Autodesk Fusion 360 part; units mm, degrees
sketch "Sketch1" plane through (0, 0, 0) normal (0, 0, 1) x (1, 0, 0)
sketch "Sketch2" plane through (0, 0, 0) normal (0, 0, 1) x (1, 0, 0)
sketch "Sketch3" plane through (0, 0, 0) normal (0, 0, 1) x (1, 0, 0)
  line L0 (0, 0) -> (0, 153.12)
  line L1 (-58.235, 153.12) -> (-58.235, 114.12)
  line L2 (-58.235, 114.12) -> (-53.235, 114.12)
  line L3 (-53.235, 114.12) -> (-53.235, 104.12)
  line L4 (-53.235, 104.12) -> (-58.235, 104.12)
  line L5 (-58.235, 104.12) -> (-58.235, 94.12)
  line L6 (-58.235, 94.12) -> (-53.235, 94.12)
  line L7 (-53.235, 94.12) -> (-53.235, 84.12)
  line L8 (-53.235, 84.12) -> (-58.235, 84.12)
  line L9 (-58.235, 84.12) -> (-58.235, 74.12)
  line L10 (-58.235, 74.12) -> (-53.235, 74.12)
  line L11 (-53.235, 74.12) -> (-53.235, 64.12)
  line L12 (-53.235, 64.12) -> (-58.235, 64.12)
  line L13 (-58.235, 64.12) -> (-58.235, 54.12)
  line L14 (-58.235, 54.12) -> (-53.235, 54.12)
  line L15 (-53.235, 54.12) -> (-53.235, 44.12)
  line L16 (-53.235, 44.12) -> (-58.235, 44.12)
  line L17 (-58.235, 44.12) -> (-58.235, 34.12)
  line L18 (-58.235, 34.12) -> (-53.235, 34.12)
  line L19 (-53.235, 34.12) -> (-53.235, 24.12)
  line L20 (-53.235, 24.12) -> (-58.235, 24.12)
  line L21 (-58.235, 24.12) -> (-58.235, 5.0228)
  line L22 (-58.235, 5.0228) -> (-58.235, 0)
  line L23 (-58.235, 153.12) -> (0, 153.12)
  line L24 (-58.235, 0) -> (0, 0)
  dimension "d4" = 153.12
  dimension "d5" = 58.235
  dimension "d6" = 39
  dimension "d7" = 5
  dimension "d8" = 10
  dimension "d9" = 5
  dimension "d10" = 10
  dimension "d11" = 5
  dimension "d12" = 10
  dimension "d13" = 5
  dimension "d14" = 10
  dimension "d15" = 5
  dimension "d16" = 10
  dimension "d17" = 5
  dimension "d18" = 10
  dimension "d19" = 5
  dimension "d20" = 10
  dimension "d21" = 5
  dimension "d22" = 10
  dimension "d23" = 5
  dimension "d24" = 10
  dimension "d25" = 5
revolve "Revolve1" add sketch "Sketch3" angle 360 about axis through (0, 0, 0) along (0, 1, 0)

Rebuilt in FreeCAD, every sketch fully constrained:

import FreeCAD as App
import Part
import Sketcher

V = App.Vector
Q = App.Units.Quantity


def add_polygon(sketch, points):
    """Adds a closed chain of lines whose ends are joined by coincident constraints."""
    first, n = sketch.GeometryCount, len(points)
    for a, b in zip(points, points[1:] + points[:1]):
        sketch.addGeometry(Part.LineSegment(App.Vector(*a, 0), App.Vector(*b, 0)), False)
    for i in range(n):
        sketch.addConstraint(Sketcher.Constraint("Coincident", first + i, 2, first + (i + 1) % n, 1))

doc = App.newDocument("Part")
body = doc.addObject("PartDesign::Body", "Body")

# Sketch on XY plane
sketch1 = doc.addObject("Sketcher::SketchObject", "Sketch")
body.addObject(sketch1)
sketch1.AttachmentSupport = (doc.XY_Plane, [""])
sketch1.MapMode = "FlatFace"
add_polygon(sketch1, [(-58, 0), (0, 0), (0, 153), (-58, 153), (-58, 114), (-53, 114), (-53, 104), (-58, 104), (-58, 94), (-53, 94), (-53, 84), (-58, 84), (-58, 74), (-53, 74), (-53, 64), (-58, 64), (-58, 54), (-53, 54), (-53, 44), (-58, 44), (-58, 34), (-53, 34), (-53, 24), (-58, 24)])  # lines 0-23
sketch1.addConstraint(Sketcher.Constraint("Horizontal", 0))
sketch1.addConstraint(Sketcher.Constraint("Vertical", 1))
sketch1.addConstraint(Sketcher.Constraint("Horizontal", 2))
sketch1.addConstraint(Sketcher.Constraint("Vertical", 3))
sketch1.addConstraint(Sketcher.Constraint("Horizontal", 4))
sketch1.addConstraint(Sketcher.Constraint("Vertical", 5))
sketch1.addConstraint(Sketcher.Constraint("Horizontal", 6))
sketch1.addConstraint(Sketcher.Constraint("Vertical", 7))
sketch1.addConstraint(Sketcher.Constraint("Horizontal", 8))
sketch1.addConstraint(Sketcher.Constraint("Vertical", 9))
sketch1.addConstraint(Sketcher.Constraint("Horizontal", 10))
sketch1.addConstraint(Sketcher.Constraint("Vertical", 11))
sketch1.addConstraint(Sketcher.Constraint("Horizontal", 12))
sketch1.addConstraint(Sketcher.Constraint("Vertical", 13))
sketch1.addConstraint(Sketcher.Constraint("Horizontal", 14))
sketch1.addConstraint(Sketcher.Constraint("Vertical", 15))
sketch1.addConstraint(Sketcher.Constraint("Horizontal", 16))
sketch1.addConstraint(Sketcher.Constraint("Vertical", 17))
sketch1.addConstraint(Sketcher.Constraint("Horizontal", 18))
sketch1.addConstraint(Sketcher.Constraint("Vertical", 19))
sketch1.addConstraint(Sketcher.Constraint("Horizontal", 20))
sketch1.addConstraint(Sketcher.Constraint("Vertical", 21))
sketch1.addConstraint(Sketcher.Constraint("Horizontal", 22))
sketch1.addConstraint(Sketcher.Constraint("Vertical", 23))
sketch1.addConstraint(Sketcher.Constraint("Coincident", 0, 2, -1, 1))
sketch1.addConstraint(Sketcher.Constraint("Vertical", 3, 2, 6, 2))
sketch1.addConstraint(Sketcher.Constraint("Vertical", 5, 2, 8, 2))
sketch1.addConstraint(Sketcher.Constraint("Vertical", 7, 2, 10, 2))
sketch1.addConstraint(Sketcher.Constraint("Vertical", 9, 2, 12, 2))
sketch1.addConstraint(Sketcher.Constraint("Vertical", 11, 2, 14, 2))
sketch1.addConstraint(Sketcher.Constraint("Vertical", 13, 2, 16, 2))
sketch1.addConstraint(Sketcher.Constraint("Vertical", 15, 2, 18, 2))
sketch1.addConstraint(Sketcher.Constraint("Vertical", 17, 2, 20, 2))
sketch1.addConstraint(Sketcher.Constraint("Vertical", 19, 2, 22, 2))
sketch1.addConstraint(Sketcher.Constraint("Equal", 5, 7))
sketch1.addConstraint(Sketcher.Constraint("Equal", 7, 9))
sketch1.addConstraint(Sketcher.Constraint("Equal", 9, 11))
sketch1.addConstraint(Sketcher.Constraint("Equal", 11, 13))
sketch1.addConstraint(Sketcher.Constraint("Equal", 13, 15))
sketch1.addConstraint(Sketcher.Constraint("Equal", 15, 17))
sketch1.addConstraint(Sketcher.Constraint("Equal", 17, 19))
sketch1.addConstraint(Sketcher.Constraint("Equal", 19, 21))
sketch1.addConstraint(Sketcher.Constraint("DistanceX", 4, 1, 4, 2, Q("5 mm")))
sketch1.addConstraint(Sketcher.Constraint("DistanceY", 3, 2, 3, 1, Q("39 mm")))
sketch1.addConstraint(Sketcher.Constraint("DistanceY", 5, 2, 5, 1, Q("10 mm")))
sketch1.addConstraint(Sketcher.Constraint("DistanceY", 1, 1, 1, 2, Q("153.12 mm")))
sketch1.addConstraint(Sketcher.Constraint("DistanceX", 0, 1, 0, 2, Q("58.235 mm")))
revolution = doc.addObject("PartDesign::Revolution", "Revolution")
body.addObject(revolution)
revolution.Profile = sketch1
revolution.ReferenceAxis = (sketch1, ["V_Axis"])
revolution.Angle = 360

doc.recompute()
